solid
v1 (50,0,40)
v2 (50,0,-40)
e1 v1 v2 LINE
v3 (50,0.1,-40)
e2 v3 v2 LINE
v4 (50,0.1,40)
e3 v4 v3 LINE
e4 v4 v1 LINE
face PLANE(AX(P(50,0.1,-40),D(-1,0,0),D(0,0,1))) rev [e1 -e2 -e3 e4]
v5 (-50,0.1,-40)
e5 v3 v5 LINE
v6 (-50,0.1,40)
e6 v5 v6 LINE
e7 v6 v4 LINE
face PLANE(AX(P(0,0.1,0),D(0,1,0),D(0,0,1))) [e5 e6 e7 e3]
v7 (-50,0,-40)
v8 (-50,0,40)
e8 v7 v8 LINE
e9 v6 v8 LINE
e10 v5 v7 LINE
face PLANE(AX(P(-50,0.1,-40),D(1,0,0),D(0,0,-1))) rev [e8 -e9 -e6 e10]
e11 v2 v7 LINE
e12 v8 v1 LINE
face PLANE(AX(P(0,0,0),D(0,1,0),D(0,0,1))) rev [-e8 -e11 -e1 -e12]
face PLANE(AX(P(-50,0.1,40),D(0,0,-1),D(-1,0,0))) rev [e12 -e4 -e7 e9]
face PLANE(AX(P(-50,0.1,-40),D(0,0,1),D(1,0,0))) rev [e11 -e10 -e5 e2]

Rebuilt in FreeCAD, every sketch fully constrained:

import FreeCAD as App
import Part
import Sketcher

doc = App.newDocument("Part")
body = doc.addObject("PartDesign::Body", "Body")

# Sketch on XZ plane
sketch1 = body.newObject("Sketcher::SketchObject", "Sketch")
sketch1.AttachmentSupport = (doc.getObject("XZ_Plane"), [""])
sketch1.MapMode = "FlatFace"
sketch1.addGeometry([
    Part.LineSegment(App.Vector(-50, -40, 0), App.Vector(-50, 40, 0)),
    Part.LineSegment(App.Vector(-50, 40, 0), App.Vector(50, 40, 0)),
    Part.LineSegment(App.Vector(50, 40, 0), App.Vector(50, -40, 0)),
    Part.LineSegment(App.Vector(50, -40, 0), App.Vector(-50, -40, 0)),
], False)
sketch1.addConstraint([
    Sketcher.Constraint("Coincident", 0, 2, 1, 1),
    Sketcher.Constraint("Coincident", 1, 2, 2, 1),
    Sketcher.Constraint("Coincident", 2, 2, 3, 1),
    Sketcher.Constraint("Coincident", 3, 2, 0, 1),
    Sketcher.Constraint("Vertical", 0),
    Sketcher.Constraint("Horizontal", 1),
    Sketcher.Constraint("Vertical", 2),
    Sketcher.Constraint("Horizontal", 3),
    Sketcher.Constraint("Symmetric", 0, 2, 2, 2, -1, 1),
    Sketcher.Constraint("DistanceX", 1, 1, 1, 2, 100.0),
    Sketcher.Constraint("DistanceY", 0, 1, 0, 2, 80.0),
])
pad1 = body.newObject("PartDesign::Pad", "Pad")
pad1.Profile = sketch1
pad1.Length = 0.1
pad1.Reversed = True

doc.recompute()
